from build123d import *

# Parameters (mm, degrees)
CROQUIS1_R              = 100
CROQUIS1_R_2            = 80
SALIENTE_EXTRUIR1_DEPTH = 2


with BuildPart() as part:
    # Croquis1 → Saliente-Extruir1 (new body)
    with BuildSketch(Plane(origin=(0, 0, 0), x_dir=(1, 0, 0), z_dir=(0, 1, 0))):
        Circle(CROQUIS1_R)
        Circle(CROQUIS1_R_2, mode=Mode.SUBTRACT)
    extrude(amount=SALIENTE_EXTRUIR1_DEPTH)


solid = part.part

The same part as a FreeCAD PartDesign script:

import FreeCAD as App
import Part
import Sketcher

doc = App.newDocument("Part")
body = doc.addObject("PartDesign::Body", "Body")

sketch1 = body.newObject("Sketcher::SketchObject", "Sketch")
sketch1.AttachmentSupport = (doc.getObject("XZ_Plane"), [""])
sketch1.MapMode = "FlatFace"
sketch1.addGeometry([
    Part.Circle(App.Vector(0, 0, 0), App.Vector(0, 0, 1), 100),
    Part.Circle(App.Vector(0, 0, 0), App.Vector(0, 0, 1), 80),
], False)
sketch1.addConstraint([
    Sketcher.Constraint("Coincident", 0, 3, -1, 1),
    Sketcher.Constraint("Coincident", 1, 3, -1, 1),
    Sketcher.Constraint("Diameter", 0, 200.0),
    Sketcher.Constraint("Diameter", 1, 160.0),
])
pad1 = body.newObject("PartDesign::Pad", "Pad")
pad1.Profile = sketch1
pad1.Length = 2
pad1.Reversed = True

doc.recompute()
